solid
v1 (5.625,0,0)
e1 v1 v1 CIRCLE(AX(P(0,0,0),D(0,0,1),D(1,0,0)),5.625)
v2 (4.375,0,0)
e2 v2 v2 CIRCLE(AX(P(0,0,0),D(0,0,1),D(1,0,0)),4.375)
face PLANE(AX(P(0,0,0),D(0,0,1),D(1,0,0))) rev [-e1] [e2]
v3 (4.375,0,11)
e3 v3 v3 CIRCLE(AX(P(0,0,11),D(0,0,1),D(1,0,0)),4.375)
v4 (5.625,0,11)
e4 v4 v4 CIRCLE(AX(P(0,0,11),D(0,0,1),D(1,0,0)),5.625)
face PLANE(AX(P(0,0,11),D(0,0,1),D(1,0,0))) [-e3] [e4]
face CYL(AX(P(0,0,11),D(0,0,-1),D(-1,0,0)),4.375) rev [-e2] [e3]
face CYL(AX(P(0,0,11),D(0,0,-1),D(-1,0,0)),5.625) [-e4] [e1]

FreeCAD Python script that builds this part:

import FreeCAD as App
import Part
import Sketcher
Q = App.Units.Quantity

doc = App.newDocument("Part")
params = doc.addObject("Spreadsheet::Sheet", "Params")
for row, (alias, value) in enumerate([
    ("sketch1_diameter", "11.25 mm"),
    ("sketch1_diameter2", "8.75 mm"),
    ("pad1_length", "11 mm"),
], start=1):
    params.set(f"A{row}", alias)
    params.set(f"B{row}", "=" + value)
    params.setAlias(f"B{row}", alias)

body = doc.addObject("PartDesign::Body", "Body")

# Sketch on XY plane
sketch1 = body.newObject("Sketcher::SketchObject", "Sketch")
sketch1.AttachmentSupport = (doc.getObject("XY_Plane"), [""])
sketch1.MapMode = "FlatFace"
sketch1.addGeometry([
    Part.Circle(App.Vector(0, 0, 0), App.Vector(0, 0, 1), 5.6),
    Part.Circle(App.Vector(0, 0, 0), App.Vector(0, 0, 1), 4.4),
], False)
sketch1.addConstraint([
    Sketcher.Constraint("Coincident", 0, 3, -1, 1),
    Sketcher.Constraint("Coincident", 1, 3, -1, 1),
    Sketcher.Constraint("Diameter", 0, Q("11.25 mm")),
    Sketcher.Constraint("Diameter", 1, Q("8.75 mm")),
])
sketch1.setExpression("Constraints[2]", "Params.sketch1_diameter")
sketch1.setExpression("Constraints[3]", "Params.sketch1_diameter2")
pad1 = body.newObject("PartDesign::Pad", "Pad")
pad1.Profile = sketch1
pad1.setExpression("Length", "Params.pad1_length")

doc.recompute()
